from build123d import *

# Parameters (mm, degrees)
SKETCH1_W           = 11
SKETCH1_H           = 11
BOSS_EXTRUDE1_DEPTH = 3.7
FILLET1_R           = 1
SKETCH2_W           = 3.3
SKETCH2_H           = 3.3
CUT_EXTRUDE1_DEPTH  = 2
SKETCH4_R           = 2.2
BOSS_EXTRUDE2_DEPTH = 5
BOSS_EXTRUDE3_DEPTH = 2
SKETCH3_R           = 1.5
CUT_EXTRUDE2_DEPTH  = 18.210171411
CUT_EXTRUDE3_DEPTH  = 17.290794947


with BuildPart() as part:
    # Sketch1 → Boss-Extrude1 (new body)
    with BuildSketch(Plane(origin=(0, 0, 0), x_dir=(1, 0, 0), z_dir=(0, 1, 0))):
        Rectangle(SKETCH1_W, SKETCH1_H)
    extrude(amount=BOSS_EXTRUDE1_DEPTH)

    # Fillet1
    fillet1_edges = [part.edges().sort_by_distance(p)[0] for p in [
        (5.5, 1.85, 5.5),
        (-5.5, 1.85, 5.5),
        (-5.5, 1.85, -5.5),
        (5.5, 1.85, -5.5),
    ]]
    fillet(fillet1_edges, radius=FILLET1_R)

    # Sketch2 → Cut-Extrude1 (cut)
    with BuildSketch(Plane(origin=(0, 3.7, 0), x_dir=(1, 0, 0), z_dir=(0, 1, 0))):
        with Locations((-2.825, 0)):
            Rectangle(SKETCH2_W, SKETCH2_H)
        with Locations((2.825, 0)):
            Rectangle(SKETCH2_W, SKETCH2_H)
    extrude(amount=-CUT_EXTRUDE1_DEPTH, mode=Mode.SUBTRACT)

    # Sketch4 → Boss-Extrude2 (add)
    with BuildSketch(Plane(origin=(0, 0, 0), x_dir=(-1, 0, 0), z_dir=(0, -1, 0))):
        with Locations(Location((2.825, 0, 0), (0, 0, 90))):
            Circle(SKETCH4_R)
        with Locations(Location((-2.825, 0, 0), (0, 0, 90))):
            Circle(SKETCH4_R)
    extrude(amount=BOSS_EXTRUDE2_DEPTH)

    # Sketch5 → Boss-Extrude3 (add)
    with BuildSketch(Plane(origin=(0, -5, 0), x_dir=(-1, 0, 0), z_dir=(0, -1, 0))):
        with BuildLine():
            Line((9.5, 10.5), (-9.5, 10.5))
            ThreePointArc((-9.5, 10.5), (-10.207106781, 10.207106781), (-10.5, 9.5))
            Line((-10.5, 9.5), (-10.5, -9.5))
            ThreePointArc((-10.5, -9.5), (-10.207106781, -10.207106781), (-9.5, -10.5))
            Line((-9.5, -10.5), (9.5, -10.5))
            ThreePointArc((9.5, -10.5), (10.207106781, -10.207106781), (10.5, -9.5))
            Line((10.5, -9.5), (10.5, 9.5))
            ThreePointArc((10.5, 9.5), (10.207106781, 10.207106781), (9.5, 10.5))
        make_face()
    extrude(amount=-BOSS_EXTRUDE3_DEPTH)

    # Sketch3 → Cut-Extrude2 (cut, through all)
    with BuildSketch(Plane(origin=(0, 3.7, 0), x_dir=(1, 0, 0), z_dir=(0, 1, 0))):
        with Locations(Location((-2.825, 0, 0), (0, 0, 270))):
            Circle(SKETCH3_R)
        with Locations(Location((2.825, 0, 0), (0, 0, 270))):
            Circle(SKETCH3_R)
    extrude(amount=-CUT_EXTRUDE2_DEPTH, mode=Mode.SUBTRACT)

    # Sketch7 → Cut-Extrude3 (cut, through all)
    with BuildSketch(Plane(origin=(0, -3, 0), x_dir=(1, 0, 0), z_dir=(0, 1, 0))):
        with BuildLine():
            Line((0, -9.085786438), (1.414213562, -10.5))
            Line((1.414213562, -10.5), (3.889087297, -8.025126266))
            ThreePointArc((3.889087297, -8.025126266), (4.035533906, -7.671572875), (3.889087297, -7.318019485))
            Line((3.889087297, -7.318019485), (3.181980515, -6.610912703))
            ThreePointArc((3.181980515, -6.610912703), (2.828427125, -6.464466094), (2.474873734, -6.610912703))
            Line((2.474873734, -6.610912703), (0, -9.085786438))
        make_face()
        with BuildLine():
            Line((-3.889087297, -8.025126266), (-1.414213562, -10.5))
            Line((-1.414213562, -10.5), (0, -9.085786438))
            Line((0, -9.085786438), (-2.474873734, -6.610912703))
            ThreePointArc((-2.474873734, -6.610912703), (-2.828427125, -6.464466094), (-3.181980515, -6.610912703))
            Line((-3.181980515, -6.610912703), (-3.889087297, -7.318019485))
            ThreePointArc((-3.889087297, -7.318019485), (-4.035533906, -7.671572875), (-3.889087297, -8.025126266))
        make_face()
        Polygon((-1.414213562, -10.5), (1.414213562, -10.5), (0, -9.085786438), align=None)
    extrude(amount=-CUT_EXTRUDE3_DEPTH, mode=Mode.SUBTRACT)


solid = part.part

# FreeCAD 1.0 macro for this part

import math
import FreeCAD as App
import Part
import Sketcher

V = App.Vector
Q = App.Units.Quantity


def edges_at(feature, points):
    """Names of the edges that pass closest to the given points."""
    edges = feature.Shape.Edges
    near = lambda p: min(range(len(edges)), key=lambda i: edges[i].distToShape(Part.Vertex(*p))[0])
    return sorted({f"Edge{near(p) + 1}" for p in points})


def add_polygon(sketch, points):
    """Adds a closed chain of lines whose ends are joined by coincident constraints."""
    first, n = sketch.GeometryCount, len(points)
    for a, b in zip(points, points[1:] + points[:1]):
        sketch.addGeometry(Part.LineSegment(App.Vector(*a, 0), App.Vector(*b, 0)), False)
    for i in range(n):
        sketch.addConstraint(Sketcher.Constraint("Coincident", first + i, 2, first + (i + 1) % n, 1))

doc = App.newDocument("Part")
params = doc.addObject("Spreadsheet::Sheet", "Params")
for row, (alias, value) in enumerate([
    ("sketch1_width", "11 mm"),
    ("pad1_length", "3.7 mm"),
    ("fillet_radius", "1 mm"),
    ("sketch2_width", "3.3 mm"),
    ("pocket1_length", "2 mm"),
    ("sketch3_diameter", "4.4 mm"),
    ("pad2_length", "5 mm"),
    ("sketch4_radius", "1 mm"),
    ("sketch4_width", "19 mm"),
    ("pad3_length", "2 mm"),
    ("sketch5_diameter", "3 mm"),
    ("sketch6_radius", "0.5 mm"),
    ("sketch6_length", "1 mm"),
    ("sketch6_length2", "3.5 mm"),
], start=1):
    params.set(f"A{row}", alias)
    params.set(f"B{row}", "=" + value)
    params.setAlias(f"B{row}", alias)

body = doc.addObject("PartDesign::Body", "Body")

# Sketch on XZ plane
sketch1 = body.newObject("Sketcher::SketchObject", "Sketch")
sketch1.AttachmentSupport = (doc.getObject("XZ_Plane"), [""])
sketch1.MapMode = "FlatFace"
add_polygon(sketch1, [(-5.5, -5.5), (-5.5, 5.5), (5.5, 5.5), (5.5, -5.5)])  # lines 0-3
sketch1.addConstraint(Sketcher.Constraint("Vertical", 0))
sketch1.addConstraint(Sketcher.Constraint("Horizontal", 1))
sketch1.addConstraint(Sketcher.Constraint("Vertical", 2))
sketch1.addConstraint(Sketcher.Constraint("Horizontal", 3))
sketch1.addConstraint(Sketcher.Constraint("Symmetric", 0, 2, 2, 2, -1, 1))
sketch1.addConstraint(Sketcher.Constraint("Equal", 3, 0))
sketch1.addConstraint(Sketcher.Constraint("DistanceX", 1, 1, 1, 2, Q("11 mm")))
sketch1.setExpression("Constraints[10]", "Params.sketch1_width")
pad1 = body.newObject("PartDesign::Pad", "Pad")
pad1.Profile = sketch1
pad1.setExpression("Length", "Params.pad1_length")
pad1.Reversed = True
doc.recompute()

fillet = body.newObject("PartDesign::Fillet", "Fillet")
fillet.Base = (pad1, edges_at(pad1, [
    (5.5, 1.85, 5.5),
    (-5.5, 1.85, 5.5),
    (-5.5, 1.85, -5.5),
    (5.5, 1.85, -5.5),
]))
fillet.setExpression("Radius", "Params.fillet_radius")

# Sketch on XZ plane
sketch2 = body.newObject("Sketcher::SketchObject", "Sketch001")
sketch2.AttachmentSupport = (doc.getObject("XZ_Plane"), [""])
sketch2.MapMode = "FlatFace"
sketch2.AttachmentOffset = App.Placement(V(0, 0, -3.7), App.Rotation())
add_polygon(sketch2, [(-4.475, -1.65), (-4.475, 1.65), (-1.175, 1.65), (-1.175, -1.65)])  # lines 0-3
add_polygon(sketch2, [(1.175, -1.65), (1.175, 1.65), (4.475, 1.65), (4.475, -1.65)])  # lines 4-7
sketch2.addConstraint(Sketcher.Constraint("Vertical", 0))
sketch2.addConstraint(Sketcher.Constraint("Horizontal", 1))
sketch2.addConstraint(Sketcher.Constraint("Vertical", 2))
sketch2.addConstraint(Sketcher.Constraint("Horizontal", 3))
sketch2.addConstraint(Sketcher.Constraint("Vertical", 4))
sketch2.addConstraint(Sketcher.Constraint("Horizontal", 5))
sketch2.addConstraint(Sketcher.Constraint("Vertical", 6))
sketch2.addConstraint(Sketcher.Constraint("Horizontal", 7))
sketch2.addConstraint(Sketcher.Constraint("Symmetric", 2, 2, 4, 2, -1, 1))
sketch2.addConstraint(Sketcher.Constraint("Symmetric", 0, 2, 6, 2, -1, 1))
sketch2.addConstraint(Sketcher.Constraint("Horizontal", 1, 2, 4, 2))
sketch2.addConstraint(Sketcher.Constraint("Equal", 7, 0))
sketch2.addConstraint(Sketcher.Constraint("DistanceX", 1, 1, 1, 2, Q("3.3 mm")))
sketch2.addConstraint(Sketcher.Constraint("DistanceX", 1, 2, 4, 2, Q("2.35 mm")))
sketch2.setExpression("Constraints[20]", "Params.sketch2_width")
pocket1 = body.newObject("PartDesign::Pocket", "Pocket")
pocket1.Profile = sketch2
pocket1.setExpression("Length", "Params.pocket1_length")
pocket1.Reversed = True

# Sketch on XZ plane
sketch3 = body.newObject("Sketcher::SketchObject", "Sketch002")
sketch3.AttachmentSupport = (doc.getObject("XZ_Plane"), [""])
sketch3.MapMode = "FlatFace"
sketch3.addGeometry(Part.Circle(V(-2.825, 0, 0), V(0, 0, 1), 2.2), False)
sketch3.addGeometry(Part.Circle(V(2.825, 0, 0), V(0, 0, 1), 2.2), False)
sketch3.addConstraint(Sketcher.Constraint("Equal", 0, 1))
sketch3.addConstraint(Sketcher.Constraint("Symmetric", 0, 3, 1, 3, -1, 1))
sketch3.addConstraint(Sketcher.Constraint("PointOnObject", 0, 3, -1))
sketch3.addConstraint(Sketcher.Constraint("Diameter", 0, Q("4.4 mm")))
sketch3.addConstraint(Sketcher.Constraint("DistanceX", 0, 3, 1, 3, Q("5.65 mm")))
sketch3.setExpression("Constraints[3]", "Params.sketch3_diameter")
pad2 = body.newObject("PartDesign::Pad", "Pad001")
pad2.Profile = sketch3
pad2.setExpression("Length", "Params.pad2_length")

# Sketch on XZ plane
sketch4 = body.newObject("Sketcher::SketchObject", "Sketch003")
sketch4.AttachmentSupport = (doc.getObject("XZ_Plane"), [""])
sketch4.MapMode = "FlatFace"
sketch4.AttachmentOffset = App.Placement(V(0, 0, 5), App.Rotation())
sketch4.addGeometry(Part.LineSegment(V(-9.5, -10.5, 0), V(9.5, -10.5, 0)), False)
sketch4.addGeometry(Part.ArcOfCircle(Part.Circle(V(9.5, -9.5, 0), V(0, 0, 1), 1), math.radians(-90), math.radians(0)), False)
sketch4.addGeometry(Part.LineSegment(V(10.5, -9.5, 0), V(10.5, 9.5, 0)), False)
sketch4.addGeometry(Part.ArcOfCircle(Part.Circle(V(9.5, 9.5, 0), V(0, 0, 1), 1), math.radians(0), math.radians(90)), False)
sketch4.addGeometry(Part.LineSegment(V(9.5, 10.5, 0), V(-9.5, 10.5, 0)), False)
sketch4.addGeometry(Part.ArcOfCircle(Part.Circle(V(-9.5, 9.5, 0), V(0, 0, 1), 1), math.radians(90), math.radians(180)), False)
sketch4.addGeometry(Part.LineSegment(V(-10.5, 9.5, 0), V(-10.5, -9.5, 0)), False)
sketch4.addGeometry(Part.ArcOfCircle(Part.Circle(V(-9.5, -9.5, 0), V(0, 0, 1), 1), math.radians(-180), math.radians(-90)), False)
sketch4.addConstraint(Sketcher.Constraint("Tangent", 0, 2, 1, 1))
sketch4.addConstraint(Sketcher.Constraint("Tangent", 1, 2, 2, 1))
sketch4.addConstraint(Sketcher.Constraint("Tangent", 2, 2, 3, 1))
sketch4.addConstraint(Sketcher.Constraint("Tangent", 3, 2, 4, 1))
sketch4.addConstraint(Sketcher.Constraint("Tangent", 4, 2, 5, 1))
sketch4.addConstraint(Sketcher.Constraint("Tangent", 5, 2, 6, 1))
sketch4.addConstraint(Sketcher.Constraint("Tangent", 6, 2, 7, 1))
sketch4.addConstraint(Sketcher.Constraint("Tangent", 7, 2, 0, 1))
sketch4.addConstraint(Sketcher.Constraint("Horizontal", 0))
sketch4.addConstraint(Sketcher.Constraint("Vertical", 2))
sketch4.addConstraint(Sketcher.Constraint("Horizontal", 4))
sketch4.addConstraint(Sketcher.Constraint("Vertical", 6))
sketch4.addConstraint(Sketcher.Constraint("Equal", 1, 3))
sketch4.addConstraint(Sketcher.Constraint("Equal", 3, 5))
sketch4.addConstraint(Sketcher.Constraint("Equal", 5, 7))
sketch4.addConstraint(Sketcher.Constraint("Symmetric", 1, 3, 5, 3, -1, 1))
sketch4.addConstraint(Sketcher.Constraint("Equal", 4, 2))
sketch4.addConstraint(Sketcher.Constraint("Radius", 1, Q("1 mm")))
sketch4.addConstraint(Sketcher.Constraint("DistanceX", 0, 1, 0, 2, Q("19 mm")))
sketch4.setExpression("Constraints[17]", "Params.sketch4_radius")
sketch4.setExpression("Constraints[18]", "Params.sketch4_width")
pad3 = body.newObject("PartDesign::Pad", "Pad002")
pad3.Profile = sketch4
pad3.setExpression("Length", "Params.pad3_length")
pad3.Reversed = True

# Sketch on XZ plane
sketch5 = body.newObject("Sketcher::SketchObject", "Sketch004")
sketch5.AttachmentSupport = (doc.getObject("XZ_Plane"), [""])
sketch5.MapMode = "FlatFace"
sketch5.AttachmentOffset = App.Placement(V(0, 0, -3.7), App.Rotation())
sketch5.addGeometry(Part.Circle(V(-2.825, 0, 0), V(0, 0, 1), 1.5), False)
sketch5.addGeometry(Part.Circle(V(2.825, 0, 0), V(0, 0, 1), 1.5), False)
sketch5.addConstraint(Sketcher.Constraint("Equal", 0, 1))
sketch5.addConstraint(Sketcher.Constraint("Symmetric", 0, 3, 1, 3, -1, 1))
sketch5.addConstraint(Sketcher.Constraint("PointOnObject", 0, 3, -1))
sketch5.addConstraint(Sketcher.Constraint("Diameter", 0, Q("3 mm")))
sketch5.addConstraint(Sketcher.Constraint("DistanceX", 0, 3, 1, 3, Q("5.65 mm")))
sketch5.setExpression("Constraints[3]", "Params.sketch5_diameter")
pocket2 = body.newObject("PartDesign::Pocket", "Pocket001")
pocket2.Profile = sketch5
pocket2.Type = "ThroughAll"
pocket2.Reversed = True

# Sketch on XZ plane
sketch6 = body.newObject("Sketcher::SketchObject", "Sketch005")
sketch6.AttachmentSupport = (doc.getObject("XZ_Plane"), [""])
sketch6.MapMode = "FlatFace"
sketch6.AttachmentOffset = App.Placement(V(0, 0, 3), App.Rotation())
sketch6.addGeometry(Part.LineSegment(V(1.414214, 10.5, 0), V(3.889087, 8.025126, 0)), False)
sketch6.addGeometry(Part.ArcOfCircle(Part.Circle(V(3.535534, 7.671573, 0), V(0, 0, 1), 0.5), math.radians(-45), math.radians(45)), False)
sketch6.addGeometry(Part.LineSegment(V(3.889087, 7.318019, 0), V(3.181981, 6.610913, 0)), False)
sketch6.addGeometry(Part.ArcOfCircle(Part.Circle(V(2.828427, 6.964466, 0), V(0, 0, 1), 0.5), math.radians(-135), math.radians(-45)), False)
sketch6.addGeometry(Part.LineSegment(V(2.474874, 6.610913, 0), V(0, 9.085786, 0)), False)
sketch6.addGeometry(Part.LineSegment(V(0, 9.085786, 0), V(-2.474874, 6.610913, 0)), False)
sketch6.addGeometry(Part.ArcOfCircle(Part.Circle(V(-2.828427, 6.964466, 0), V(0, 0, 1), 0.5), math.radians(-135), math.radians(-45)), False)
sketch6.addGeometry(Part.LineSegment(V(-3.181981, 6.610913, 0), V(-3.889087, 7.318019, 0)), False)
sketch6.addGeometry(Part.ArcOfCircle(Part.Circle(V(-3.535534, 7.671573, 0), V(0, 0, 1), 0.5), math.radians(135), math.radians(225)), False)
sketch6.addGeometry(Part.LineSegment(V(-3.889087, 8.025126, 0), V(-1.414214, 10.5, 0)), False)
sketch6.addGeometry(Part.LineSegment(V(-1.414214, 10.5, 0), V(1.414214, 10.5, 0)), False)
sketch6.addConstraint(Sketcher.Constraint("Tangent", 0, 2, 1, 2))
sketch6.addConstraint(Sketcher.Constraint("Tangent", 1, 1, 2, 1))
sketch6.addConstraint(Sketcher.Constraint("Tangent", 2, 2, 3, 2))
sketch6.addConstraint(Sketcher.Constraint("Tangent", 3, 1, 4, 1))
sketch6.addConstraint(Sketcher.Constraint("Coincident", 4, 2, 5, 1))
sketch6.addConstraint(Sketcher.Constraint("Tangent", 5, 2, 6, 2))
sketch6.addConstraint(Sketcher.Constraint("Tangent", 6, 1, 7, 1))
sketch6.addConstraint(Sketcher.Constraint("Tangent", 7, 2, 8, 2))
sketch6.addConstraint(Sketcher.Constraint("Tangent", 8, 1, 9, 1))
sketch6.addConstraint(Sketcher.Constraint("Coincident", 9, 2, 10, 1))
sketch6.addConstraint(Sketcher.Constraint("Coincident", 10, 2, 0, 1))
sketch6.addConstraint(Sketcher.Constraint("Horizontal", 10))
sketch6.addConstraint(Sketcher.Constraint("Equal", 1, 3))
sketch6.addConstraint(Sketcher.Constraint("Equal", 3, 6))
sketch6.addConstraint(Sketcher.Constraint("Equal", 6, 8))
sketch6.addConstraint(Sketcher.Constraint("Symmetric", 3, 3, 6, 3, -2))
sketch6.addConstraint(Sketcher.Constraint("Symmetric", 1, 3, 8, 3, -2))
sketch6.addConstraint(Sketcher.Constraint("PointOnObject", 4, 2, -2))
sketch6.addConstraint(Sketcher.Constraint("Perpendicular", 0, 2))
sketch6.addConstraint(Sketcher.Constraint("Perpendicular", 2, 4))
sketch6.addConstraint(Sketcher.Constraint("Perpendicular", 4, 5))
sketch6.addConstraint(Sketcher.Constraint("Perpendicular", 7, 9))
sketch6.addConstraint(Sketcher.Constraint("Equal", 0, 4))
sketch6.addConstraint(Sketcher.Constraint("Radius", 1, Q("0.5 mm")))
sketch6.addConstraint(Sketcher.Constraint("Distance", 2, Q("1 mm")))
sketch6.addConstraint(Sketcher.Constraint("Distance", 0, Q("3.5 mm")))
sketch6.addConstraint(Sketcher.Constraint("DistanceY", -1, 1, 9, 2, Q("10.5 mm")))
sketch6.setExpression("Constraints[23]", "Params.sketch6_radius")
sketch6.setExpression("Constraints[24]", "Params.sketch6_length")
sketch6.setExpression("Constraints[25]", "Params.sketch6_length2")
pocket3 = body.newObject("PartDesign::Pocket", "Pocket002")
pocket3.Profile = sketch6
pocket3.Type = "ThroughAll"
pocket3.Reversed = True

doc.recompute()
